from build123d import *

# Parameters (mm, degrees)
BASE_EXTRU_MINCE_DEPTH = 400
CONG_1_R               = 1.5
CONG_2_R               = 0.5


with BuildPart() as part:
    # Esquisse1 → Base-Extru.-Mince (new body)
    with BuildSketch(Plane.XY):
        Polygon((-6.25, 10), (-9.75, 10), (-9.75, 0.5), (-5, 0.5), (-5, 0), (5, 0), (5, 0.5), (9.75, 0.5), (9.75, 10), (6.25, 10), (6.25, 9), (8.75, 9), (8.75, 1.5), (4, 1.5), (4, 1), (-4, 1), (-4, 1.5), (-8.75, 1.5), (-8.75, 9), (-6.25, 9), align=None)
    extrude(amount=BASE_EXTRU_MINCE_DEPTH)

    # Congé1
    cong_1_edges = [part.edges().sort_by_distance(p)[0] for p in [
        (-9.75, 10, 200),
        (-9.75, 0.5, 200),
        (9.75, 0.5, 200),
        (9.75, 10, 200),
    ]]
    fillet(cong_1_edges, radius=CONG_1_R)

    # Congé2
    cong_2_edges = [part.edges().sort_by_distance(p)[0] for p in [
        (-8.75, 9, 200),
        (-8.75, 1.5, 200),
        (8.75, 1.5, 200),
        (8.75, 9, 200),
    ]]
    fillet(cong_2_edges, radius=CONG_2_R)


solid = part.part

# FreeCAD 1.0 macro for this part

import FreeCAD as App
import Part
import Sketcher


def edges_at(feature, points):
    """Names of the edges that pass closest to the given points."""
    edges = feature.Shape.Edges
    near = lambda p: min(range(len(edges)), key=lambda i: edges[i].distToShape(Part.Vertex(*p))[0])
    return sorted({f"Edge{near(p) + 1}" for p in points})


def add_polygon(sketch, points):
    """Adds a closed chain of lines whose ends are joined by coincident constraints."""
    first, n = sketch.GeometryCount, len(points)
    for a, b in zip(points, points[1:] + points[:1]):
        sketch.addGeometry(Part.LineSegment(App.Vector(*a, 0), App.Vector(*b, 0)), False)
    for i in range(n):
        sketch.addConstraint(Sketcher.Constraint("Coincident", first + i, 2, first + (i + 1) % n, 1))

doc = App.newDocument("Part")
params = doc.addObject("Spreadsheet::Sheet", "Params")
for row, (alias, value) in enumerate([
    ("sketch1_width", "10 mm"),
    ("sketch1_width2", "8 mm"),
    ("sketch1_height", "1 mm"),
    ("sketch1_width3", "3.5 mm"),
    ("sketch1_height2", "9.5 mm"),
    ("pad1_length", "400 mm"),
    ("fillet_radius", "1.5 mm"),
    ("fillet2_radius", "0.5 mm"),
], start=1):
    params.set(f"A{row}", alias)
    params.set(f"B{row}", "=" + value)
    params.setAlias(f"B{row}", alias)

body = doc.addObject("PartDesign::Body", "Body")

sketch1 = body.newObject("Sketcher::SketchObject", "Sketch")
sketch1.AttachmentSupport = (doc.getObject("XY_Plane"), [""])
sketch1.MapMode = "FlatFace"
add_polygon(sketch1, [(-6.2, 10), (-9.8, 10), (-9.8, 0.5), (-5, 0.5), (-5, 0), (5, 0), (5, 0.5), (9.8, 0.5), (9.8, 10), (6.2, 10), (6.2, 9), (8.8, 9), (8.8, 1.5), (4, 1.5), (4, 1), (-4, 1), (-4, 1.5), (-8.8, 1.5), (-8.8, 9), (-6.2, 9)])
sketch1.addConstraint(Sketcher.Constraint("Horizontal", 0))
sketch1.addConstraint(Sketcher.Constraint("Vertical", 1))
sketch1.addConstraint(Sketcher.Constraint("Horizontal", 2))
sketch1.addConstraint(Sketcher.Constraint("Vertical", 3))
sketch1.addConstraint(Sketcher.Constraint("Horizontal", 4))
sketch1.addConstraint(Sketcher.Constraint("Vertical", 5))
sketch1.addConstraint(Sketcher.Constraint("Horizontal", 6))
sketch1.addConstraint(Sketcher.Constraint("Vertical", 7))
sketch1.addConstraint(Sketcher.Constraint("Horizontal", 8))
sketch1.addConstraint(Sketcher.Constraint("Vertical", 9))
sketch1.addConstraint(Sketcher.Constraint("Horizontal", 10))
sketch1.addConstraint(Sketcher.Constraint("Vertical", 11))
sketch1.addConstraint(Sketcher.Constraint("Horizontal", 12))
sketch1.addConstraint(Sketcher.Constraint("Vertical", 13))
sketch1.addConstraint(Sketcher.Constraint("Horizontal", 14))
sketch1.addConstraint(Sketcher.Constraint("Vertical", 15))
sketch1.addConstraint(Sketcher.Constraint("Horizontal", 16))
sketch1.addConstraint(Sketcher.Constraint("Vertical", 17))
sketch1.addConstraint(Sketcher.Constraint("Horizontal", 18))
sketch1.addConstraint(Sketcher.Constraint("Vertical", 19))
sketch1.addConstraint(Sketcher.Constraint("Symmetric", 3, 2, 4, 2, -1, 1))
sketch1.addConstraint(Sketcher.Constraint("Symmetric", 1, 2, 6, 2, -2))
sketch1.addConstraint(Sketcher.Constraint("Symmetric", 12, 2, 15, 2, -2))
sketch1.addConstraint(Sketcher.Constraint("Symmetric", 10, 2, 17, 2, -2))
sketch1.addConstraint(Sketcher.Constraint("Symmetric", 8, 2, 19, 2, -2))
sketch1.addConstraint(Sketcher.Constraint("Equal", 6, 12))
sketch1.addConstraint(Sketcher.Constraint("Equal", 5, 13))
sketch1.addConstraint(Sketcher.Constraint("DistanceX", 4, 1, 4, 2, 10.0))
sketch1.addConstraint(Sketcher.Constraint("DistanceX", 14, 2, 14, 1, 8.0))
sketch1.addConstraint(Sketcher.Constraint("DistanceY", 9, 2, 9, 1, 1.0))
sketch1.addConstraint(Sketcher.Constraint("DistanceX", 0, 2, 0, 1, 3.5))
sketch1.addConstraint(Sketcher.Constraint("DistanceY", 1, 2, 1, 1, 9.5))
sketch1.addConstraint(Sketcher.Constraint("DistanceY", 3, 2, 3, 1, 0.5))
sketch1.addConstraint(Sketcher.Constraint("DistanceY", 11, 2, 11, 1, 7.5))
sketch1.addConstraint(Sketcher.Constraint("DistanceX", 2, 1, 2, 2, 4.75))
sketch1.setExpression("Constraints[47]", "Params.sketch1_width")
sketch1.setExpression("Constraints[48]", "Params.sketch1_width2")
sketch1.setExpression("Constraints[49]", "Params.sketch1_height")
sketch1.setExpression("Constraints[50]", "Params.sketch1_width3")
sketch1.setExpression("Constraints[51]", "Params.sketch1_height2")
pad1 = body.newObject("PartDesign::Pad", "Pad")
pad1.Profile = sketch1
pad1.setExpression("Length", "Params.pad1_length")
doc.recompute()

fillet = body.newObject("PartDesign::Fillet", "Fillet")
fillet.Base = (pad1, edges_at(pad1, [
    (-9.75, 10, 200),
    (-9.75, 0.5, 200),
    (9.75, 0.5, 200),
    (9.75, 10, 200),
]))
fillet.setExpression("Radius", "Params.fillet_radius")
doc.recompute()

fillet2 = body.newObject("PartDesign::Fillet", "Fillet001")
fillet2.Base = (fillet, edges_at(fillet, [
    (-8.75, 9, 200),
    (-8.75, 1.5, 200),
    (8.75, 1.5, 200),
    (8.75, 9, 200),
]))
fillet2.setExpression("Radius", "Params.fillet2_radius")

doc.recompute()
